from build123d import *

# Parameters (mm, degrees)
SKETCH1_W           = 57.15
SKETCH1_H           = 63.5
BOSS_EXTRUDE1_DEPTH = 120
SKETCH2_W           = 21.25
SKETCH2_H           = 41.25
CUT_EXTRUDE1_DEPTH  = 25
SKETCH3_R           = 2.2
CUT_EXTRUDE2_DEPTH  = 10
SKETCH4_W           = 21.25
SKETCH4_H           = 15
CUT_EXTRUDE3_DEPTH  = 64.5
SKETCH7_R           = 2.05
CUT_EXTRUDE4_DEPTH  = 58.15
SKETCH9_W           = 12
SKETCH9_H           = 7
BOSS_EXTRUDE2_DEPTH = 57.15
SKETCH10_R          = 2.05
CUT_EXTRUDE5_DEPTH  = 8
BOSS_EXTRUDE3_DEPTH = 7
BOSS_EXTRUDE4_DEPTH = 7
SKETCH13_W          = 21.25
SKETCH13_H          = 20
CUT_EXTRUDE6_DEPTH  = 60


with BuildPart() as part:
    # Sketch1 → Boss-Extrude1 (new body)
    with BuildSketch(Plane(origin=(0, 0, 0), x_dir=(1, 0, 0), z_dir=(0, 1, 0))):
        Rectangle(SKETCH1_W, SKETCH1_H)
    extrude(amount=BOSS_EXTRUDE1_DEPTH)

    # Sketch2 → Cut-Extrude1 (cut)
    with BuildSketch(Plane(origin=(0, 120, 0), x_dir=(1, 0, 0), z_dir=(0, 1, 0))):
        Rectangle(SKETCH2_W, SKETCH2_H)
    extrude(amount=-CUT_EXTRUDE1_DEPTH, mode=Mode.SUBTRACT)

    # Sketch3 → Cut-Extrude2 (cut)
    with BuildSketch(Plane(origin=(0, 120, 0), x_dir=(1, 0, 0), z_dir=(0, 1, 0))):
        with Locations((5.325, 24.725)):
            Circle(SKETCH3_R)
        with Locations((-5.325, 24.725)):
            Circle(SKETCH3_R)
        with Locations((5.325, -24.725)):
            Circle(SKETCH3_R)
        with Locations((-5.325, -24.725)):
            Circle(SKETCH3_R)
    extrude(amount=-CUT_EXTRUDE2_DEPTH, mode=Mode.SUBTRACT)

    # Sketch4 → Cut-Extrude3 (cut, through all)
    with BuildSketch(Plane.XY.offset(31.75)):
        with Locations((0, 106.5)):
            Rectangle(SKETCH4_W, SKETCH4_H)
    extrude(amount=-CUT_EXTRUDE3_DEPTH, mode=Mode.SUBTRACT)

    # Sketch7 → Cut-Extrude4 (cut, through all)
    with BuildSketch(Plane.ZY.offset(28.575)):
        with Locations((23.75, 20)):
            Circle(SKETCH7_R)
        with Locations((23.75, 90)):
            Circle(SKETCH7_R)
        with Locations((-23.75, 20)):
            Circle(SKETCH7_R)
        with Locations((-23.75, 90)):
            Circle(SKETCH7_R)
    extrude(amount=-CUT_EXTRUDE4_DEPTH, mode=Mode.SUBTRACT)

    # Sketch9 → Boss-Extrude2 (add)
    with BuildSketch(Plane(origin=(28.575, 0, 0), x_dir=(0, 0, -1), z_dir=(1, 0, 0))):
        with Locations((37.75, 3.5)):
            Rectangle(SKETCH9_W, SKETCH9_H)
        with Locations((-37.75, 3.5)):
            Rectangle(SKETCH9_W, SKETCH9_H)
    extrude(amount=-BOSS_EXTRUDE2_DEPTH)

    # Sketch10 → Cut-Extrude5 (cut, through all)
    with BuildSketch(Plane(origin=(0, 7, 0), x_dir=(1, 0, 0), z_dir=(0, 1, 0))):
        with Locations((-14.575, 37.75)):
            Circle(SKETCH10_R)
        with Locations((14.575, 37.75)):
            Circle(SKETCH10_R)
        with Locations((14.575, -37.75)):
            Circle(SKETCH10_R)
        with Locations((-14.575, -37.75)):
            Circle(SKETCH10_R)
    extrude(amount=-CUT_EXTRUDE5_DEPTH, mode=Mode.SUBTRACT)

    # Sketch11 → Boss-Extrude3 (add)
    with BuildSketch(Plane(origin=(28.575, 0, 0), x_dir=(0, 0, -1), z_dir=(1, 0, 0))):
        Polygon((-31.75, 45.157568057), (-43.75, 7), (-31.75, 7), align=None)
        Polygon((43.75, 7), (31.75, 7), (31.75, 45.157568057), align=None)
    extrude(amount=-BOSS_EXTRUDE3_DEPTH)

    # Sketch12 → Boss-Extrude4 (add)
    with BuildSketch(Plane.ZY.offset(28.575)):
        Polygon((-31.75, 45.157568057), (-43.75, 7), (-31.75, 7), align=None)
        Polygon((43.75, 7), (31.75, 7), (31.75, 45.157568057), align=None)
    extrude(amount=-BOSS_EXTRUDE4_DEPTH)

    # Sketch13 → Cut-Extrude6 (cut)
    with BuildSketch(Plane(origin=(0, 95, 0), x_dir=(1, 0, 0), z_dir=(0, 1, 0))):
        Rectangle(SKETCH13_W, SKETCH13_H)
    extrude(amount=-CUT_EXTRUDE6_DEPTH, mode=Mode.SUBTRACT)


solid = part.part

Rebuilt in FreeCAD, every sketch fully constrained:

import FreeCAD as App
import Part
import Sketcher

doc = App.newDocument("Part")
body = doc.addObject("PartDesign::Body", "Body")

# Sketch on XZ plane
sketch1 = doc.addObject("Sketcher::SketchObject", "Sketch")
body.addObject(sketch1)
sketch1.AttachmentSupport = (doc.XZ_Plane, [""])
sketch1.MapMode = "FlatFace"
sketch1.addGeometry(Part.LineSegment(App.Vector(-29, -32, 0), App.Vector(-29, 32, 0)), False)
sketch1.addGeometry(Part.LineSegment(App.Vector(-29, 32, 0), App.Vector(29, 32, 0)), False)
sketch1.addGeometry(Part.LineSegment(App.Vector(29, 32, 0), App.Vector(29, -32, 0)), False)
sketch1.addGeometry(Part.LineSegment(App.Vector(29, -32, 0), App.Vector(-29, -32, 0)), False)
sketch1.addConstraint(Sketcher.Constraint("Coincident", 0, 2, 1, 1))
sketch1.addConstraint(Sketcher.Constraint("Coincident", 1, 2, 2, 1))
sketch1.addConstraint(Sketcher.Constraint("Coincident", 2, 2, 3, 1))
sketch1.addConstraint(Sketcher.Constraint("Coincident", 3, 2, 0, 1))
sketch1.addConstraint(Sketcher.Constraint("Vertical", 0))
sketch1.addConstraint(Sketcher.Constraint("Horizontal", 1))
sketch1.addConstraint(Sketcher.Constraint("Vertical", 2))
sketch1.addConstraint(Sketcher.Constraint("Horizontal", 3))
sketch1.addConstraint(Sketcher.Constraint("Symmetric", 0, 2, 2, 2, -1, 1))
sketch1.addConstraint(Sketcher.Constraint("DistanceY", 0, 1, 0, 2, 63.5))
sketch1.addConstraint(Sketcher.Constraint("DistanceX", 1, 1, 1, 2, 57.15))
pad1 = doc.addObject("PartDesign::Pad", "Pad")
body.addObject(pad1)
pad1.Profile = sketch1
pad1.Length = 120
pad1.Reversed = True

# Sketch on XZ plane
sketch2 = doc.addObject("Sketcher::SketchObject", "Sketch001")
body.addObject(sketch2)
sketch2.AttachmentSupport = (doc.XZ_Plane, [""])
sketch2.MapMode = "FlatFace"
sketch2.AttachmentOffset = App.Placement(App.Vector(0, 0, -120), App.Rotation())
sketch2.addGeometry(Part.LineSegment(App.Vector(-11, -21, 0), App.Vector(-11, 21, 0)), False)
sketch2.addGeometry(Part.LineSegment(App.Vector(-11, 21, 0), App.Vector(11, 21, 0)), False)
sketch2.addGeometry(Part.LineSegment(App.Vector(11, 21, 0), App.Vector(11, -21, 0)), False)
sketch2.addGeometry(Part.LineSegment(App.Vector(11, -21, 0), App.Vector(-11, -21, 0)), False)
sketch2.addConstraint(Sketcher.Constraint("Coincident", 0, 2, 1, 1))
sketch2.addConstraint(Sketcher.Constraint("Coincident", 1, 2, 2, 1))
sketch2.addConstraint(Sketcher.Constraint("Coincident", 2, 2, 3, 1))
sketch2.addConstraint(Sketcher.Constraint("Coincident", 3, 2, 0, 1))
sketch2.addConstraint(Sketcher.Constraint("Vertical", 0))
sketch2.addConstraint(Sketcher.Constraint("Horizontal", 1))
sketch2.addConstraint(Sketcher.Constraint("Vertical", 2))
sketch2.addConstraint(Sketcher.Constraint("Horizontal", 3))
sketch2.addConstraint(Sketcher.Constraint("Symmetric", 0, 2, 2, 2, -1, 1))
sketch2.addConstraint(Sketcher.Constraint("DistanceX", 1, 1, 1, 2, 21.25))
sketch2.addConstraint(Sketcher.Constraint("DistanceY", 0, 1, 0, 2, 41.25))
pocket1 = doc.addObject("PartDesign::Pocket", "Pocket")
body.addObject(pocket1)
pocket1.Profile = sketch2
pocket1.Length = 25
pocket1.Reversed = True

# Sketch on XZ plane
sketch3 = doc.addObject("Sketcher::SketchObject", "Sketch002")
body.addObject(sketch3)
sketch3.AttachmentSupport = (doc.XZ_Plane, [""])
sketch3.MapMode = "FlatFace"
sketch3.AttachmentOffset = App.Placement(App.Vector(0, 0, -120), App.Rotation())
sketch3.addGeometry(Part.Circle(App.Vector(5.3, -24.7, 0), App.Vector(0, 0, 1), 2.2), False)
sketch3.addGeometry(Part.Circle(App.Vector(-5.3, -24.7, 0), App.Vector(0, 0, 1), 2.2), False)
sketch3.addGeometry(Part.Circle(App.Vector(5.3, 24.7, 0), App.Vector(0, 0, 1), 2.2), False)
sketch3.addGeometry(Part.Circle(App.Vector(-5.3, 24.7, 0), App.Vector(0, 0, 1), 2.2), False)
sketch3.addConstraint(Sketcher.Constraint("Equal", 0, 1))
sketch3.addConstraint(Sketcher.Constraint("Equal", 1, 2))
sketch3.addConstraint(Sketcher.Constraint("Equal", 2, 3))
sketch3.addConstraint(Sketcher.Constraint("Symmetric", 1, 3, 2, 3, -1, 1))
sketch3.addConstraint(Sketcher.Constraint("Symmetric", 0, 3, 3, 3, -1, 1))
sketch3.addConstraint(Sketcher.Constraint("Symmetric", 0, 3, 1, 3, -2))
sketch3.addConstraint(Sketcher.Constraint("Diameter", 0, 4.4))
sketch3.addConstraint(Sketcher.Constraint("DistanceX", 1, 3, 0, 3, 10.65))
sketch3.addConstraint(Sketcher.Constraint("DistanceY", 0, 3, 2, 3, 49.45))
pocket2 = doc.addObject("PartDesign::Pocket", "Pocket001")
body.addObject(pocket2)
pocket2.Profile = sketch3
pocket2.Length = 10
pocket2.Reversed = True

# Sketch on XY plane
sketch4 = doc.addObject("Sketcher::SketchObject", "Sketch003")
body.addObject(sketch4)
sketch4.AttachmentSupport = (doc.XY_Plane, [""])
sketch4.MapMode = "FlatFace"
sketch4.AttachmentOffset = App.Placement(App.Vector(0, 0, 31.75), App.Rotation())
sketch4.addGeometry(Part.LineSegment(App.Vector(-11, 114, 0), App.Vector(-11, 99, 0)), False)
sketch4.addGeometry(Part.LineSegment(App.Vector(-11, 99, 0), App.Vector(11, 99, 0)), False)
sketch4.addGeometry(Part.LineSegment(App.Vector(11, 99, 0), App.Vector(11, 114, 0)), False)
sketch4.addGeometry(Part.LineSegment(App.Vector(11, 114, 0), App.Vector(-11, 114, 0)), False)
sketch4.addConstraint(Sketcher.Constraint("Coincident", 0, 2, 1, 1))
sketch4.addConstraint(Sketcher.Constraint("Coincident", 1, 2, 2, 1))
sketch4.addConstraint(Sketcher.Constraint("Coincident", 2, 2, 3, 1))
sketch4.addConstraint(Sketcher.Constraint("Coincident", 3, 2, 0, 1))
sketch4.addConstraint(Sketcher.Constraint("Vertical", 0))
sketch4.addConstraint(Sketcher.Constraint("Horizontal", 1))
sketch4.addConstraint(Sketcher.Constraint("Vertical", 2))
sketch4.addConstraint(Sketcher.Constraint("Horizontal", 3))
sketch4.addConstraint(Sketcher.Constraint("DistanceY", 0, 2, 0, 1, 15.0))
sketch4.addConstraint(Sketcher.Constraint("DistanceY", -1, 1, 0, 2, 99.0))
sketch4.addConstraint(Sketcher.Constraint("DistanceX", 1, 1, 1, 2, 21.25))
sketch4.addConstraint(Sketcher.Constraint("DistanceX", 0, 2, -1, 1, 10.625))
pocket3 = doc.addObject("PartDesign::Pocket", "Pocket002")
body.addObject(pocket3)
pocket3.Profile = sketch4
pocket3.Type = "ThroughAll"

# Sketch on YZ plane
sketch5 = doc.addObject("Sketcher::SketchObject", "Sketch004")
body.addObject(sketch5)
sketch5.AttachmentSupport = (doc.YZ_Plane, [""])
sketch5.MapMode = "FlatFace"
sketch5.AttachmentOffset = App.Placement(App.Vector(0, 0, -28.575), App.Rotation())
sketch5.addGeometry(Part.Circle(App.Vector(20, 23.8, 0), App.Vector(0, 0, 1), 2), False)
sketch5.addGeometry(Part.Circle(App.Vector(90, 23.8, 0), App.Vector(0, 0, 1), 2), False)
sketch5.addGeometry(Part.Circle(App.Vector(20, -23.8, 0), App.Vector(0, 0, 1), 2), False)
sketch5.addGeometry(Part.Circle(App.Vector(90, -23.8, 0), App.Vector(0, 0, 1), 2), False)
sketch5.addConstraint(Sketcher.Constraint("Equal", 0, 1))
sketch5.addConstraint(Sketcher.Constraint("Equal", 1, 2))
sketch5.addConstraint(Sketcher.Constraint("Equal", 2, 3))
sketch5.addConstraint(Sketcher.Constraint("Symmetric", 0, 3, 2, 3, -1))
sketch5.addConstraint(Sketcher.Constraint("Symmetric", 1, 3, 3, 3, -1))
sketch5.addConstraint(Sketcher.Constraint("Horizontal", 0, 3, 1, 3))
sketch5.addConstraint(Sketcher.Constraint("Diameter", 0, 4.1))
sketch5.addConstraint(Sketcher.Constraint("DistanceX", -1, 1, 0, 3, 20.0))
sketch5.addConstraint(Sketcher.Constraint("DistanceX", -1, 1, 1, 3, 90.0))
sketch5.addConstraint(Sketcher.Constraint("DistanceY", 2, 3, 0, 3, 47.5))
pocket4 = doc.addObject("PartDesign::Pocket", "Pocket003")
body.addObject(pocket4)
pocket4.Profile = sketch5
pocket4.Type = "ThroughAll"
pocket4.Reversed = True

# Sketch on YZ plane
sketch6 = doc.addObject("Sketcher::SketchObject", "Sketch005")
body.addObject(sketch6)
sketch6.AttachmentSupport = (doc.YZ_Plane, [""])
sketch6.MapMode = "FlatFace"
sketch6.AttachmentOffset = App.Placement(App.Vector(0, 0, 28.575), App.Rotation())
sketch6.addGeometry(Part.LineSegment(App.Vector(7, -32, 0), App.Vector(0, -32, 0)), False)
sketch6.addGeometry(Part.LineSegment(App.Vector(0, -32, 0), App.Vector(0, -44, 0)), False)
sketch6.addGeometry(Part.LineSegment(App.Vector(0, -44, 0), App.Vector(7, -44, 0)), False)
sketch6.addGeometry(Part.LineSegment(App.Vector(7, -44, 0), App.Vector(7, -32, 0)), False)
sketch6.addGeometry(Part.LineSegment(App.Vector(7, 44, 0), App.Vector(0, 44, 0)), False)
sketch6.addGeometry(Part.LineSegment(App.Vector(0, 44, 0), App.Vector(0, 32, 0)), False)
sketch6.addGeometry(Part.LineSegment(App.Vector(0, 32, 0), App.Vector(7, 32, 0)), False)
sketch6.addGeometry(Part.LineSegment(App.Vector(7, 32, 0), App.Vector(7, 44, 0)), False)
sketch6.addConstraint(Sketcher.Constraint("Coincident", 0, 2, 1, 1))
sketch6.addConstraint(Sketcher.Constraint("Coincident", 1, 2, 2, 1))
sketch6.addConstraint(Sketcher.Constraint("Coincident", 2, 2, 3, 1))
sketch6.addConstraint(Sketcher.Constraint("Coincident", 3, 2, 0, 1))
sketch6.addConstraint(Sketcher.Constraint("Coincident", 4, 2, 5, 1))
sketch6.addConstraint(Sketcher.Constraint("Coincident", 5, 2, 6, 1))
sketch6.addConstraint(Sketcher.Constraint("Coincident", 6, 2, 7, 1))
sketch6.addConstraint(Sketcher.Constraint("Coincident", 7, 2, 4, 1))
sketch6.addConstraint(Sketcher.Constraint("Horizontal", 0))
sketch6.addConstraint(Sketcher.Constraint("Vertical", 1))
sketch6.addConstraint(Sketcher.Constraint("Horizontal", 2))
sketch6.addConstraint(Sketcher.Constraint("Vertical", 3))
sketch6.addConstraint(Sketcher.Constraint("Horizontal", 4))
sketch6.addConstraint(Sketcher.Constraint("Vertical", 5))
sketch6.addConstraint(Sketcher.Constraint("Horizontal", 6))
sketch6.addConstraint(Sketcher.Constraint("Vertical", 7))
sketch6.addConstraint(Sketcher.Constraint("Symmetric", 1, 2, 4, 2, -1, 1))
sketch6.addConstraint(Sketcher.Constraint("Symmetric", 0, 2, 5, 2, -1))
sketch6.addConstraint(Sketcher.Constraint("Vertical", 3, 2, 6, 2))
sketch6.addConstraint(Sketcher.Constraint("DistanceX", 0, 2, 0, 1, 7.0))
sketch6.addConstraint(Sketcher.Constraint("DistanceY", 1, 2, 1, 1, 12.0))
sketch6.addConstraint(Sketcher.Constraint("DistanceY", 0, 2, 4, 2, 75.5))
pad2 = doc.addObject("PartDesign::Pad", "Pad001")
body.addObject(pad2)
pad2.Profile = sketch6
pad2.Length = 57.15
pad2.Reversed = True

# Sketch on XZ plane
sketch7 = doc.addObject("Sketcher::SketchObject", "Sketch006")
body.addObject(sketch7)
sketch7.AttachmentSupport = (doc.XZ_Plane, [""])
sketch7.MapMode = "FlatFace"
sketch7.AttachmentOffset = App.Placement(App.Vector(0, 0, -7), App.Rotation())
sketch7.addGeometry(Part.Circle(App.Vector(-14.6, -37.8, 0), App.Vector(0, 0, 1), 2), False)
sketch7.addGeometry(Part.Circle(App.Vector(14.6, -37.8, 0), App.Vector(0, 0, 1), 2), False)
sketch7.addGeometry(Part.Circle(App.Vector(14.6, 37.8, 0), App.Vector(0, 0, 1), 2), False)
sketch7.addGeometry(Part.Circle(App.Vector(-14.6, 37.8, 0), App.Vector(0, 0, 1), 2), False)
sketch7.addConstraint(Sketcher.Constraint("Equal", 0, 1))
sketch7.addConstraint(Sketcher.Constraint("Equal", 1, 2))
sketch7.addConstraint(Sketcher.Constraint("Equal", 2, 3))
sketch7.addConstraint(Sketcher.Constraint("Symmetric", 0, 3, 2, 3, -1, 1))
sketch7.addConstraint(Sketcher.Constraint("Symmetric", 1, 3, 3, 3, -1, 1))
sketch7.addConstraint(Sketcher.Constraint("Symmetric", 0, 3, 1, 3, -2))
sketch7.addConstraint(Sketcher.Constraint("Diameter", 0, 4.1))
sketch7.addConstraint(Sketcher.Constraint("DistanceY", 1, 3, 2, 3, 75.5))
sketch7.addConstraint(Sketcher.Constraint("DistanceX", 0, 3, 1, 3, 29.15))
pocket5 = doc.addObject("PartDesign::Pocket", "Pocket004")
body.addObject(pocket5)
pocket5.Profile = sketch7
pocket5.Type = "ThroughAll"
pocket5.Reversed = True

# Sketch on YZ plane
sketch8 = doc.addObject("Sketcher::SketchObject", "Sketch007")
body.addObject(sketch8)
sketch8.AttachmentSupport = (doc.YZ_Plane, [""])
sketch8.MapMode = "FlatFace"
sketch8.AttachmentOffset = App.Placement(App.Vector(0, 0, 28.575), App.Rotation())
sketch8.addGeometry(Part.LineSegment(App.Vector(45, 32, 0), App.Vector(7, 44, 0)), False)
sketch8.addGeometry(Part.LineSegment(App.Vector(7, 44, 0), App.Vector(7, 32, 0)), False)
sketch8.addGeometry(Part.LineSegment(App.Vector(7, 32, 0), App.Vector(45, 32, 0)), False)
sketch8.addGeometry(Part.LineSegment(App.Vector(7, -32, 0), App.Vector(7, -44, 0)), False)
sketch8.addGeometry(Part.LineSegment(App.Vector(7, -44, 0), App.Vector(45, -32, 0)), False)
sketch8.addGeometry(Part.LineSegment(App.Vector(45, -32, 0), App.Vector(7, -32, 0)), False)
sketch8.addConstraint(Sketcher.Constraint("Coincident", 0, 2, 1, 1))
sketch8.addConstraint(Sketcher.Constraint("Coincident", 1, 2, 2, 1))
sketch8.addConstraint(Sketcher.Constraint("Coincident", 2, 2, 0, 1))
sketch8.addConstraint(Sketcher.Constraint("Coincident", 3, 2, 4, 1))
sketch8.addConstraint(Sketcher.Constraint("Coincident", 4, 2, 5, 1))
sketch8.addConstraint(Sketcher.Constraint("Coincident", 5, 2, 3, 1))
sketch8.addConstraint(Sketcher.Constraint("Vertical", 1))
sketch8.addConstraint(Sketcher.Constraint("Horizontal", 2))
sketch8.addConstraint(Sketcher.Constraint("Vertical", 3))
sketch8.addConstraint(Sketcher.Constraint("Horizontal", 5))
sketch8.addConstraint(Sketcher.Constraint("Symmetric", 0, 2, 3, 2, -1))
sketch8.addConstraint(Sketcher.Constraint("Symmetric", 2, 2, 4, 2, -1))
sketch8.addConstraint(Sketcher.Constraint("DistanceY", 1, 2, 1, 1, 12.0))
sketch8.addConstraint(Sketcher.Constraint("Distance", 0, 40.0))
sketch8.addConstraint(Sketcher.Constraint("DistanceX", -1, 1, 0, 2, 7.0))
sketch8.addConstraint(Sketcher.Constraint("DistanceY", 3, 2, 1, 2, 75.5))
pad3 = doc.addObject("PartDesign::Pad", "Pad002")
body.addObject(pad3)
pad3.Profile = sketch8
pad3.Length = 7
pad3.Reversed = True

# Sketch on YZ plane
sketch9 = doc.addObject("Sketcher::SketchObject", "Sketch008")
body.addObject(sketch9)
sketch9.AttachmentSupport = (doc.YZ_Plane, [""])
sketch9.MapMode = "FlatFace"
sketch9.AttachmentOffset = App.Placement(App.Vector(0, 0, -28.575), App.Rotation())
sketch9.addGeometry(Part.LineSegment(App.Vector(45, -32, 0), App.Vector(7, -44, 0)), False)
sketch9.addGeometry(Part.LineSegment(App.Vector(7, -44, 0), App.Vector(7, -32, 0)), False)
sketch9.addGeometry(Part.LineSegment(App.Vector(7, -32, 0), App.Vector(45, -32, 0)), False)
sketch9.addGeometry(Part.LineSegment(App.Vector(7, 32, 0), App.Vector(7, 44, 0)), False)
sketch9.addGeometry(Part.LineSegment(App.Vector(7, 44, 0), App.Vector(45, 32, 0)), False)
sketch9.addGeometry(Part.LineSegment(App.Vector(45, 32, 0), App.Vector(7, 32, 0)), False)
sketch9.addConstraint(Sketcher.Constraint("Coincident", 0, 2, 1, 1))
sketch9.addConstraint(Sketcher.Constraint("Coincident", 1, 2, 2, 1))
sketch9.addConstraint(Sketcher.Constraint("Coincident", 2, 2, 0, 1))
sketch9.addConstraint(Sketcher.Constraint("Coincident", 3, 2, 4, 1))
sketch9.addConstraint(Sketcher.Constraint("Coincident", 4, 2, 5, 1))
sketch9.addConstraint(Sketcher.Constraint("Coincident", 5, 2, 3, 1))
sketch9.addConstraint(Sketcher.Constraint("Vertical", 1))
sketch9.addConstraint(Sketcher.Constraint("Horizontal", 2))
sketch9.addConstraint(Sketcher.Constraint("Vertical", 3))
sketch9.addConstraint(Sketcher.Constraint("Horizontal", 5))
sketch9.addConstraint(Sketcher.Constraint("Symmetric", 0, 2, 3, 2, -1))
sketch9.addConstraint(Sketcher.Constraint("Symmetric", 2, 2, 4, 2, -1))
sketch9.addConstraint(Sketcher.Constraint("DistanceY", 1, 1, 1, 2, 12.0))
sketch9.addConstraint(Sketcher.Constraint("Distance", 0, 40.0))
sketch9.addConstraint(Sketcher.Constraint("DistanceX", -1, 1, 0, 2, 7.0))
sketch9.addConstraint(Sketcher.Constraint("DistanceY", 1, 2, 3, 2, 75.5))
pad4 = doc.addObject("PartDesign::Pad", "Pad003")
body.addObject(pad4)
pad4.Profile = sketch9
pad4.Length = 7

# Sketch on XZ plane
sketch10 = doc.addObject("Sketcher::SketchObject", "Sketch009")
body.addObject(sketch10)
sketch10.AttachmentSupport = (doc.XZ_Plane, [""])
sketch10.MapMode = "FlatFace"
sketch10.AttachmentOffset = App.Placement(App.Vector(0, 0, -95), App.Rotation())
sketch10.addGeometry(Part.LineSegment(App.Vector(-11, -10, 0), App.Vector(-11, 10, 0)), False)
sketch10.addGeometry(Part.LineSegment(App.Vector(-11, 10, 0), App.Vector(11, 10, 0)), False)
sketch10.addGeometry(Part.LineSegment(App.Vector(11, 10, 0), App.Vector(11, -10, 0)), False)
sketch10.addGeometry(Part.LineSegment(App.Vector(11, -10, 0), App.Vector(-11, -10, 0)), False)
sketch10.addConstraint(Sketcher.Constraint("Coincident", 0, 2, 1, 1))
sketch10.addConstraint(Sketcher.Constraint("Coincident", 1, 2, 2, 1))
sketch10.addConstraint(Sketcher.Constraint("Coincident", 2, 2, 3, 1))
sketch10.addConstraint(Sketcher.Constraint("Coincident", 3, 2, 0, 1))
sketch10.addConstraint(Sketcher.Constraint("Vertical", 0))
sketch10.addConstraint(Sketcher.Constraint("Horizontal", 1))
sketch10.addConstraint(Sketcher.Constraint("Vertical", 2))
sketch10.addConstraint(Sketcher.Constraint("Horizontal", 3))
sketch10.addConstraint(Sketcher.Constraint("Symmetric", 0, 2, 2, 2, -1, 1))
sketch10.addConstraint(Sketcher.Constraint("DistanceY", 0, 1, 0, 2, 20.0))
sketch10.addConstraint(Sketcher.Constraint("DistanceX", 1, 1, 1, 2, 21.25))
pocket6 = doc.addObject("PartDesign::Pocket", "Pocket005")
body.addObject(pocket6)
pocket6.Profile = sketch10
pocket6.Length = 60
pocket6.Reversed = True

doc.recompute()
